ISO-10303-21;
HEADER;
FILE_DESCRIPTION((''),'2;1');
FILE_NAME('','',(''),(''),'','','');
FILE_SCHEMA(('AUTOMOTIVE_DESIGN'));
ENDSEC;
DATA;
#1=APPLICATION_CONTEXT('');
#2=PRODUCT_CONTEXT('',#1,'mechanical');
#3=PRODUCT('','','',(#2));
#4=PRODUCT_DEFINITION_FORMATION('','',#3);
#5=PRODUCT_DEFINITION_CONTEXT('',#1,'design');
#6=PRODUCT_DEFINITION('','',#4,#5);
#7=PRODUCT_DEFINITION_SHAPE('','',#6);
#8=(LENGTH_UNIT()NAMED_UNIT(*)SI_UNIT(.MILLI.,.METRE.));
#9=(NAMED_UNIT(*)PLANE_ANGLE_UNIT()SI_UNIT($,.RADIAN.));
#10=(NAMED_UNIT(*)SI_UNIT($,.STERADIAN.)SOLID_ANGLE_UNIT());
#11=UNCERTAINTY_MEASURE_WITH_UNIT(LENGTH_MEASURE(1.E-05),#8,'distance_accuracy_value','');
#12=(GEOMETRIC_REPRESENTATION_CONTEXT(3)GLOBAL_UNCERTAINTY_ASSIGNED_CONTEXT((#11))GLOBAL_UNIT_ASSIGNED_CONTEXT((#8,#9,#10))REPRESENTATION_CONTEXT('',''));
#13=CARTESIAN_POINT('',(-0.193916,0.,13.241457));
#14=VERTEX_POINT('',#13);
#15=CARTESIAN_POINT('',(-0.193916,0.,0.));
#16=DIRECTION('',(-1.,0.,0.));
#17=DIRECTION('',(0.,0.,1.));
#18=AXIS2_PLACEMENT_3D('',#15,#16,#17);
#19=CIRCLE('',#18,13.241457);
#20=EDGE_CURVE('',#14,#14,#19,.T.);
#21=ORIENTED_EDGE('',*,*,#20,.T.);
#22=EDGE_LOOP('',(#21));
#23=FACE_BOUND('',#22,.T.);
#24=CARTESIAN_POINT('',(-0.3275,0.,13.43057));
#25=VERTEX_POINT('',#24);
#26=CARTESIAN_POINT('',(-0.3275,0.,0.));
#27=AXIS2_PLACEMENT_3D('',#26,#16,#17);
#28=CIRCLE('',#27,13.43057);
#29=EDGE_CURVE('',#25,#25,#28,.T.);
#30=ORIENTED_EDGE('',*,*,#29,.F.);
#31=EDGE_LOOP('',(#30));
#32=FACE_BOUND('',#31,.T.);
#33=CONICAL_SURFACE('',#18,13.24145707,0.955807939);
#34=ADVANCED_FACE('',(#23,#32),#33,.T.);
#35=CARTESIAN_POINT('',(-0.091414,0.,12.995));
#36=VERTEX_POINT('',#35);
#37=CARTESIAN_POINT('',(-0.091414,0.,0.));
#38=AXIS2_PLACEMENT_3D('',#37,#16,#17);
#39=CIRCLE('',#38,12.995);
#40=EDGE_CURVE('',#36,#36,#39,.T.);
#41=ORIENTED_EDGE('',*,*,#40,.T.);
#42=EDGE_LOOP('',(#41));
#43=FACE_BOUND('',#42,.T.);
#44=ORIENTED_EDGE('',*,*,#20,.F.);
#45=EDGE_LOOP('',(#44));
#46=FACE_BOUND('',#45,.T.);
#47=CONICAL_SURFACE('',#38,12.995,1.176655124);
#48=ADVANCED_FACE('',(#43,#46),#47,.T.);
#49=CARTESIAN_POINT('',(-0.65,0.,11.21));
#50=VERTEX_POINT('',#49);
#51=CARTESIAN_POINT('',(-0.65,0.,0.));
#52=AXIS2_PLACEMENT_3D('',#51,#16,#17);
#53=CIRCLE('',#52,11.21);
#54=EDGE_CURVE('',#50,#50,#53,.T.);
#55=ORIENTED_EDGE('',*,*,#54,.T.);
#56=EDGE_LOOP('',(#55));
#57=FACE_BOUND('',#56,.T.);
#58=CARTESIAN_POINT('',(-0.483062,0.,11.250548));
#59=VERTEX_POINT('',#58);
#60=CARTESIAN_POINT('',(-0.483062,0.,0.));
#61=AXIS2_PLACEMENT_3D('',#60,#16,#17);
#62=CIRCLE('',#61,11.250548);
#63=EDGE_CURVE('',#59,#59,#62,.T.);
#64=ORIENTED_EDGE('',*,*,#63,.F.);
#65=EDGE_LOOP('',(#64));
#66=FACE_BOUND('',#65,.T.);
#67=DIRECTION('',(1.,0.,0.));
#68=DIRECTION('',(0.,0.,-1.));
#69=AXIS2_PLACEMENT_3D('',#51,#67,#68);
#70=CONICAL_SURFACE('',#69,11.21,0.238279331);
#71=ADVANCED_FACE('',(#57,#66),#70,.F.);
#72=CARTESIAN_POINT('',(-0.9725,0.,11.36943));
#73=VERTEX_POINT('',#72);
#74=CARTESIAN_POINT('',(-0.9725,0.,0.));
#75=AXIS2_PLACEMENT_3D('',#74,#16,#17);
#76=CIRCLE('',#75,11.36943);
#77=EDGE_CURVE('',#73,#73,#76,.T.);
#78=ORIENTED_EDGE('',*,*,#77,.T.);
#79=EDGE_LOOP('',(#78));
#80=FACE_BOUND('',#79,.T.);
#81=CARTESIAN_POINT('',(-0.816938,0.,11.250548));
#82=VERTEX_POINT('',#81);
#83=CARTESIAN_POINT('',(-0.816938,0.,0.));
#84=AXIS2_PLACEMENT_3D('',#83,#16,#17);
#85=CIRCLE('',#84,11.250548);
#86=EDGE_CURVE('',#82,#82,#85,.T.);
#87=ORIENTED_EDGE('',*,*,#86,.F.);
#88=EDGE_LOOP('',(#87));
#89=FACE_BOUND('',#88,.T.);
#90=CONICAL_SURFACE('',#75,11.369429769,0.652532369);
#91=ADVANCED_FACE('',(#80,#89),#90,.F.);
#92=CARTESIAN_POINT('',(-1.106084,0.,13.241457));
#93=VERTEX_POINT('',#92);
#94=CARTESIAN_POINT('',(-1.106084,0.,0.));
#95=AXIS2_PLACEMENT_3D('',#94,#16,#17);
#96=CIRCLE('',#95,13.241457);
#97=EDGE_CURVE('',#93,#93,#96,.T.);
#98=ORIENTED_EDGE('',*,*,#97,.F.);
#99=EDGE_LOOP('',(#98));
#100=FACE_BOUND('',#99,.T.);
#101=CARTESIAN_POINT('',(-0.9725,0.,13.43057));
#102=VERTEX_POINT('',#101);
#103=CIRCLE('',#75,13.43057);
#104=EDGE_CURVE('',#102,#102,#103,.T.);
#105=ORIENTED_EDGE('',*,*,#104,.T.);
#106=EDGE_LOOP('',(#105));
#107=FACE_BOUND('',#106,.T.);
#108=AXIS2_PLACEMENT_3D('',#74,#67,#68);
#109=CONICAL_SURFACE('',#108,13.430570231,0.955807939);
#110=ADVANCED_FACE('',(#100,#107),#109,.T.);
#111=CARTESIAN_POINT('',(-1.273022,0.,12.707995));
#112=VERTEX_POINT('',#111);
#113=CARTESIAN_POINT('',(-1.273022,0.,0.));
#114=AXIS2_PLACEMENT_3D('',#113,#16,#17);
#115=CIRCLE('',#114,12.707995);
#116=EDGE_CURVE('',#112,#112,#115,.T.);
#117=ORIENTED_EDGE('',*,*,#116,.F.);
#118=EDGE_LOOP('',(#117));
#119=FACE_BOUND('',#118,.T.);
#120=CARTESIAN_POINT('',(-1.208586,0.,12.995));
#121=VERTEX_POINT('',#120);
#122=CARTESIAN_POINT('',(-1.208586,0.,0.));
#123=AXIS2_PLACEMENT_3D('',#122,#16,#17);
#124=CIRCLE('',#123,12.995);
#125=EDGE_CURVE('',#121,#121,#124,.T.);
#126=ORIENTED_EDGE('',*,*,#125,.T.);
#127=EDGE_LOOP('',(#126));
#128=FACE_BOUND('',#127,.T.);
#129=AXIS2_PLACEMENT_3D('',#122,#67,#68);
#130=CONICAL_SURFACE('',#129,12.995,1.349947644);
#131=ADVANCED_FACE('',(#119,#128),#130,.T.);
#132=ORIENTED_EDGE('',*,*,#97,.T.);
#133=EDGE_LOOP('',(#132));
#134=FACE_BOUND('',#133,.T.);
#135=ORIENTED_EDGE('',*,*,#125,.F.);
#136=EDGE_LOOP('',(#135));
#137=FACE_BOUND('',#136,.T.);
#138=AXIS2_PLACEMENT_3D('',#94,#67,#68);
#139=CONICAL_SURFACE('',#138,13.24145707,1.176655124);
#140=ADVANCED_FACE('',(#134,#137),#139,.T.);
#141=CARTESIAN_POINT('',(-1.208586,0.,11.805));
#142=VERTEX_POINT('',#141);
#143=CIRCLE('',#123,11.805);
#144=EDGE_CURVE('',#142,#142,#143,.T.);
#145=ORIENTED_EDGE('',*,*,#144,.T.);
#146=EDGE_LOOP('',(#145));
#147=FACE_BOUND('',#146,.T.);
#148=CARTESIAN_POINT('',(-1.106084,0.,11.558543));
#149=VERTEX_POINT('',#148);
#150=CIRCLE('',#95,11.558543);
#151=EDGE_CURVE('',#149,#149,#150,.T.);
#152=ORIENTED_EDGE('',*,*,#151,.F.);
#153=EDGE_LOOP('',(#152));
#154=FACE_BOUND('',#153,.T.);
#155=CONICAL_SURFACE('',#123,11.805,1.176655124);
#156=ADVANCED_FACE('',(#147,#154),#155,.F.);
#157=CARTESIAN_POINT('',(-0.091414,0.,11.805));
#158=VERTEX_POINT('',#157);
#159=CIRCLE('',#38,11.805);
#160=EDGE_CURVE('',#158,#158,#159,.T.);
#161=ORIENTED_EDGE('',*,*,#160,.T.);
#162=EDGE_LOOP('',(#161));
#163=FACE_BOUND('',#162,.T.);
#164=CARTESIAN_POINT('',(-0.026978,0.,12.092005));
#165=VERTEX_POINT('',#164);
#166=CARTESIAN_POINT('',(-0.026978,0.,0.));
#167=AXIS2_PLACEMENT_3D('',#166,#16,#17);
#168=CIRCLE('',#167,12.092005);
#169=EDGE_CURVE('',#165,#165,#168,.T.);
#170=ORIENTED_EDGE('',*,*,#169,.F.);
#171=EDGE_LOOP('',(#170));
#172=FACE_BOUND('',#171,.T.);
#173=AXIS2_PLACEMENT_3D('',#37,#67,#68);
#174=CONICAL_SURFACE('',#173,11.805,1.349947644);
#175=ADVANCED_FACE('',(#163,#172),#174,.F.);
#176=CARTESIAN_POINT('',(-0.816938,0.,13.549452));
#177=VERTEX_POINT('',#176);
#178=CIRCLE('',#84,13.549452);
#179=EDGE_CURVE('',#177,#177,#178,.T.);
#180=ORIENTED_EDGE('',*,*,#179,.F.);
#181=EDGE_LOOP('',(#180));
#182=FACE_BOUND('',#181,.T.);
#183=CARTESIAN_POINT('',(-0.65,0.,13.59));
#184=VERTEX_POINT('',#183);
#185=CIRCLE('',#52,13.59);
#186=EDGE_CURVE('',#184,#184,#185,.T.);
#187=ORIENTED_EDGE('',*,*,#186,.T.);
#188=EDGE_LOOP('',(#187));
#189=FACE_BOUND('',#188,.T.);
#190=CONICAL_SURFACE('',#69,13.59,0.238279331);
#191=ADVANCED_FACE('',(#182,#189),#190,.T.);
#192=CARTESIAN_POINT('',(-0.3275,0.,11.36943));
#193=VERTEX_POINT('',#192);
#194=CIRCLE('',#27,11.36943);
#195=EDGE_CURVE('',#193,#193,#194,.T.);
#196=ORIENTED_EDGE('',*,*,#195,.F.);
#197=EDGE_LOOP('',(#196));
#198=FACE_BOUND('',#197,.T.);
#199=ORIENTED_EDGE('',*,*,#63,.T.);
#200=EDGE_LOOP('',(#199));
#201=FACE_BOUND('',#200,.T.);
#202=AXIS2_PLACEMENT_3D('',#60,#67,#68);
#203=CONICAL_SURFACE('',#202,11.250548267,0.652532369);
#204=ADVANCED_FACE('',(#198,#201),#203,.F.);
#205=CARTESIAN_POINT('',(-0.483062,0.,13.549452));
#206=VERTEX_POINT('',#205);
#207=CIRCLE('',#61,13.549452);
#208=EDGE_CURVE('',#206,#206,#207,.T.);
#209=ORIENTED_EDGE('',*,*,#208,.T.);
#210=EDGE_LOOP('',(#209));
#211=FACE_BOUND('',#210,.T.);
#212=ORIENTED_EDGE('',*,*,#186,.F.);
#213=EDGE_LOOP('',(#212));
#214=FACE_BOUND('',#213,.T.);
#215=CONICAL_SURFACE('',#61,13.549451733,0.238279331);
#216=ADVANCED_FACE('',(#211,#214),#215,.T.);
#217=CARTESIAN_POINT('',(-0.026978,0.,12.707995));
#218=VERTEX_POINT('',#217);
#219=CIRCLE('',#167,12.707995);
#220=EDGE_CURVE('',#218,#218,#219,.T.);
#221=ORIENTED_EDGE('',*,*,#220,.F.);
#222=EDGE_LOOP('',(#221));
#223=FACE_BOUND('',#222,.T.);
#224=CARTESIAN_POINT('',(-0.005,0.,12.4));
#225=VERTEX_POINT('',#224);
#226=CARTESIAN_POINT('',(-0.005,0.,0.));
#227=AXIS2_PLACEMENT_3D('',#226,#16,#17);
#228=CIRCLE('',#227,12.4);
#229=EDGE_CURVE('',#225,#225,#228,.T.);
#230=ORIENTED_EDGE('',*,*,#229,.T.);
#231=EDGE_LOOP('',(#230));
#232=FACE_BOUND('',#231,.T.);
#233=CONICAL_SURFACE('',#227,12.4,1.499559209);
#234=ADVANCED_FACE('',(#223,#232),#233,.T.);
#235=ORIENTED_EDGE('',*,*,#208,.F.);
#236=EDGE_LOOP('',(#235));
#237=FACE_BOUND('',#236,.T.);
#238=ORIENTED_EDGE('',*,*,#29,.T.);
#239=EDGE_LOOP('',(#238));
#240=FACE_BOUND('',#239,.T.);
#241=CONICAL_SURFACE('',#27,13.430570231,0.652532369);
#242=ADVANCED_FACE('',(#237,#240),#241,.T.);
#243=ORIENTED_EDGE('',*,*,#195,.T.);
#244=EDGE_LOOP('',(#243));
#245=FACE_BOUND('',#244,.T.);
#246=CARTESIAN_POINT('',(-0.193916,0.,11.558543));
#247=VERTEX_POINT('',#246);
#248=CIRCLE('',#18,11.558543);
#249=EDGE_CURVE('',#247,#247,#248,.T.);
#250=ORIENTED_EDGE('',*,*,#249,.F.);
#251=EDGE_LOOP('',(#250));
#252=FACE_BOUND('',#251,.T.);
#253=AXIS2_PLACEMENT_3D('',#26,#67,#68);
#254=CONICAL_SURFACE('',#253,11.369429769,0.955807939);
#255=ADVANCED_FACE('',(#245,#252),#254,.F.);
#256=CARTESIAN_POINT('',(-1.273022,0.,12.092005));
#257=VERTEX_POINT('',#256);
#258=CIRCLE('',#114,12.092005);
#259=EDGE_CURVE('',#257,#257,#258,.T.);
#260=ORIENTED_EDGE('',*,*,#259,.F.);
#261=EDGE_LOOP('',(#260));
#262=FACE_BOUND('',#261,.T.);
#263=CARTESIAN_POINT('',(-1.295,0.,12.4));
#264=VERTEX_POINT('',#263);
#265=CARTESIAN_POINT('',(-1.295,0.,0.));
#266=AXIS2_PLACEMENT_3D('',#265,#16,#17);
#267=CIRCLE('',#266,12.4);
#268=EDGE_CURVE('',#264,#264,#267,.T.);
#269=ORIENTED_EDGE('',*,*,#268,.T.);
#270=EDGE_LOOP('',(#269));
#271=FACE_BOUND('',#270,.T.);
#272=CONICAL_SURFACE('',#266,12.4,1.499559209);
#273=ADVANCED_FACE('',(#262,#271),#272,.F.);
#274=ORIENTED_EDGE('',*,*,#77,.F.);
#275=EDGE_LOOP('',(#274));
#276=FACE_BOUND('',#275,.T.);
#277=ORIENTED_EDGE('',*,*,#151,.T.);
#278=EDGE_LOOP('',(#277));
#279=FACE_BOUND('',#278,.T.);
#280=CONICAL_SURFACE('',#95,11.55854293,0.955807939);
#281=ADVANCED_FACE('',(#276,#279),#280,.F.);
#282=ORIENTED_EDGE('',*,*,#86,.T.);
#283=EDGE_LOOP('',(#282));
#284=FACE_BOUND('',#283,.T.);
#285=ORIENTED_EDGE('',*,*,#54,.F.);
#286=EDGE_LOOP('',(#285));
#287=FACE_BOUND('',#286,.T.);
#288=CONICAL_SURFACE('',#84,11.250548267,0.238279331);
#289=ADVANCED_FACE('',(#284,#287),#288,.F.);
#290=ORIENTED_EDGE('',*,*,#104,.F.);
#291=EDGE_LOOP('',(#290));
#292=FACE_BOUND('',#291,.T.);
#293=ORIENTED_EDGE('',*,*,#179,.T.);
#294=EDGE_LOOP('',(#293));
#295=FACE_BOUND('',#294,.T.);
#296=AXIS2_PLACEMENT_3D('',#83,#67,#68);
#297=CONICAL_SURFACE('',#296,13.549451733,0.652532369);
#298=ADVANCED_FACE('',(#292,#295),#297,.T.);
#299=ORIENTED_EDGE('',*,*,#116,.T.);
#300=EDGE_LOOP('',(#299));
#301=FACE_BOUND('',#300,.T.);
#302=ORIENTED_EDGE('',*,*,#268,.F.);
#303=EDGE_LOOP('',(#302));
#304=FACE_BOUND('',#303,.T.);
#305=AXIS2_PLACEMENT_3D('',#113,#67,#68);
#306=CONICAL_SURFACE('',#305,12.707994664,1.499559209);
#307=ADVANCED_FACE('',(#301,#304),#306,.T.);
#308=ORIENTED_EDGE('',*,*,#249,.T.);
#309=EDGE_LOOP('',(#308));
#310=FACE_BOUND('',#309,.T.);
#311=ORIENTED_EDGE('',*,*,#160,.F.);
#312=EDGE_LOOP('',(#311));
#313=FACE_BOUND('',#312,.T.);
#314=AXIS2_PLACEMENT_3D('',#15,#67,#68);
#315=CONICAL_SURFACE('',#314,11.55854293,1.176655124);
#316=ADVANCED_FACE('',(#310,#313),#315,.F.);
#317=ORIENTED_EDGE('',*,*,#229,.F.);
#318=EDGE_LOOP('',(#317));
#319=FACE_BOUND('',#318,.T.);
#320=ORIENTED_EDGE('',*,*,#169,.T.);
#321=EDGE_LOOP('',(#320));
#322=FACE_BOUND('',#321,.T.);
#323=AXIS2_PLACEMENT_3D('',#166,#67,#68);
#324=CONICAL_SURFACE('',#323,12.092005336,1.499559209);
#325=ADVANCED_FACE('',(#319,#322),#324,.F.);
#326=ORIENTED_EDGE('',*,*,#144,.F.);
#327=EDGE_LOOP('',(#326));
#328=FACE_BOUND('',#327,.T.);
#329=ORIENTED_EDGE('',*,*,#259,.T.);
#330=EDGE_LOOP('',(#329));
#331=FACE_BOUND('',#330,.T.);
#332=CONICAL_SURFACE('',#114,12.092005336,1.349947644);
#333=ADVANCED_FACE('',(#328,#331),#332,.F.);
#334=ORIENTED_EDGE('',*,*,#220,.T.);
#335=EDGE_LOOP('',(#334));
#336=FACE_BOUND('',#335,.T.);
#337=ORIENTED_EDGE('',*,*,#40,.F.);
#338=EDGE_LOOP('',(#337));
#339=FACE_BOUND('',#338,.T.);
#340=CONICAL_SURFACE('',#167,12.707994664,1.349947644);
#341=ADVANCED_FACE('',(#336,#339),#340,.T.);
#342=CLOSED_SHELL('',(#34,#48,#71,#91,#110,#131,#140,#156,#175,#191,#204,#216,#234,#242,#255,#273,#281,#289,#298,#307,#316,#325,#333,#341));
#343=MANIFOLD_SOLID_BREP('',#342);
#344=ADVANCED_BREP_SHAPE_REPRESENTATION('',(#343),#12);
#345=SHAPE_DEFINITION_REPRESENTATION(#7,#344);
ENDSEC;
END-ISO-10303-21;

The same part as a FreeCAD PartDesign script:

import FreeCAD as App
import Part
import Sketcher

V = App.Vector
Q = App.Units.Quantity

doc = App.newDocument("Part")
body = doc.addObject("PartDesign::Body", "Body")

sketch1 = body.newObject("Sketcher::SketchObject", "Sketch")
sketch1.AttachmentSupport = (doc.getObject("XY_Plane"), [""])
sketch1.MapMode = "FlatFace"
sketch1.addGeometry(Part.LineSegment(V(-1.27, 12.71, 0), V(-1.29, 12.4, 0)), False)
sketch1.addGeometry(Part.LineSegment(V(-1.29, 12.4, 0), V(-1.27, 12.09, 0)), False)
sketch1.addGeometry(Part.LineSegment(V(-1.27, 12.09, 0), V(-1.21, 11.8, 0)), False)
sketch1.addGeometry(Part.LineSegment(V(-1.21, 11.8, 0), V(-1.11, 11.56, 0)), False)
sketch1.addGeometry(Part.LineSegment(V(-1.11, 11.56, 0), V(-0.97, 11.37, 0)), False)
sketch1.addGeometry(Part.LineSegment(V(-0.97, 11.37, 0), V(-0.82, 11.25, 0)), False)
sketch1.addGeometry(Part.LineSegment(V(-0.82, 11.25, 0), V(-0.65, 11.21, 0)), False)
sketch1.addGeometry(Part.LineSegment(V(-0.65, 11.21, 0), V(-0.48, 11.25, 0)), False)
sketch1.addGeometry(Part.LineSegment(V(-0.48, 11.25, 0), V(-0.33, 11.37, 0)), False)
sketch1.addGeometry(Part.LineSegment(V(-0.33, 11.37, 0), V(-0.19, 11.56, 0)), False)
sketch1.addGeometry(Part.LineSegment(V(-0.19, 11.56, 0), V(-0.09, 11.8, 0)), False)
sketch1.addGeometry(Part.LineSegment(V(-0.09, 11.8, 0), V(-0.03, 12.09, 0)), False)
sketch1.addGeometry(Part.LineSegment(V(-0.03, 12.09, 0), V(-0.01, 12.4, 0)), False)
sketch1.addGeometry(Part.LineSegment(V(-0.01, 12.4, 0), V(-0.03, 12.71, 0)), False)
sketch1.addGeometry(Part.LineSegment(V(-0.03, 12.71, 0), V(-0.09, 12.99, 0)), False)
sketch1.addGeometry(Part.LineSegment(V(-0.09, 12.99, 0), V(-0.19, 13.24, 0)), False)
sketch1.addGeometry(Part.LineSegment(V(-0.19, 13.24, 0), V(-0.33, 13.43, 0)), False)
sketch1.addGeometry(Part.LineSegment(V(-0.33, 13.43, 0), V(-0.48, 13.55, 0)), False)
sketch1.addGeometry(Part.LineSegment(V(-0.48, 13.55, 0), V(-0.65, 13.59, 0)), False)
sketch1.addGeometry(Part.LineSegment(V(-0.65, 13.59, 0), V(-0.82, 13.55, 0)), False)
sketch1.addGeometry(Part.LineSegment(V(-0.82, 13.55, 0), V(-0.97, 13.43, 0)), False)
sketch1.addGeometry(Part.LineSegment(V(-0.97, 13.43, 0), V(-1.11, 13.24, 0)), False)
sketch1.addGeometry(Part.LineSegment(V(-1.11, 13.24, 0), V(-1.21, 12.99, 0)), False)
sketch1.addGeometry(Part.LineSegment(V(-1.21, 12.99, 0), V(-1.27, 12.71, 0)), False)
sketch1.addConstraint(Sketcher.Constraint("Coincident", 0, 2, 1, 1))
sketch1.addConstraint(Sketcher.Constraint("Coincident", 1, 2, 2, 1))
sketch1.addConstraint(Sketcher.Constraint("Coincident", 2, 2, 3, 1))
sketch1.addConstraint(Sketcher.Constraint("Coincident", 3, 2, 4, 1))
sketch1.addConstraint(Sketcher.Constraint("Coincident", 4, 2, 5, 1))
sketch1.addConstraint(Sketcher.Constraint("Coincident", 5, 2, 6, 1))
sketch1.addConstraint(Sketcher.Constraint("Coincident", 6, 2, 7, 1))
sketch1.addConstraint(Sketcher.Constraint("Coincident", 7, 2, 8, 1))
sketch1.addConstraint(Sketcher.Constraint("Coincident", 8, 2, 9, 1))
sketch1.addConstraint(Sketcher.Constraint("Coincident", 9, 2, 10, 1))
sketch1.addConstraint(Sketcher.Constraint("Coincident", 10, 2, 11, 1))
sketch1.addConstraint(Sketcher.Constraint("Coincident", 11, 2, 12, 1))
sketch1.addConstraint(Sketcher.Constraint("Coincident", 12, 2, 13, 1))
sketch1.addConstraint(Sketcher.Constraint("Coincident", 13, 2, 14, 1))
sketch1.addConstraint(Sketcher.Constraint("Coincident", 14, 2, 15, 1))
sketch1.addConstraint(Sketcher.Constraint("Coincident", 15, 2, 16, 1))
sketch1.addConstraint(Sketcher.Constraint("Coincident", 16, 2, 17, 1))
sketch1.addConstraint(Sketcher.Constraint("Coincident", 17, 2, 18, 1))
sketch1.addConstraint(Sketcher.Constraint("Coincident", 18, 2, 19, 1))
sketch1.addConstraint(Sketcher.Constraint("Coincident", 19, 2, 20, 1))
sketch1.addConstraint(Sketcher.Constraint("Coincident", 20, 2, 21, 1))
sketch1.addConstraint(Sketcher.Constraint("Coincident", 21, 2, 22, 1))
sketch1.addConstraint(Sketcher.Constraint("Coincident", 22, 2, 23, 1))
sketch1.addConstraint(Sketcher.Constraint("Coincident", 23, 2, 0, 1))
sketch1.addConstraint(Sketcher.Constraint("Parallel", 0, 12))
sketch1.addConstraint(Sketcher.Constraint("Parallel", 1, 13))
sketch1.addConstraint(Sketcher.Constraint("Parallel", 2, 14))
sketch1.addConstraint(Sketcher.Constraint("Parallel", 3, 15))
sketch1.addConstraint(Sketcher.Constraint("Parallel", 4, 16))
sketch1.addConstraint(Sketcher.Constraint("Parallel", 5, 17))
sketch1.addConstraint(Sketcher.Constraint("Parallel", 6, 18))
sketch1.addConstraint(Sketcher.Constraint("Parallel", 7, 19))
sketch1.addConstraint(Sketcher.Constraint("Parallel", 8, 20))
sketch1.addConstraint(Sketcher.Constraint("Parallel", 9, 21))
sketch1.addConstraint(Sketcher.Constraint("Parallel", 10, 22))
sketch1.addConstraint(Sketcher.Constraint("Parallel", 11, 23))
sketch1.addConstraint(Sketcher.Constraint("Horizontal", 5, 2, 7, 2))
sketch1.addConstraint(Sketcher.Constraint("Horizontal", 4, 2, 8, 2))
sketch1.addConstraint(Sketcher.Constraint("Horizontal", 3, 2, 9, 2))
sketch1.addConstraint(Sketcher.Constraint("Horizontal", 2, 2, 10, 2))
sketch1.addConstraint(Sketcher.Constraint("Horizontal", 1, 2, 11, 2))
sketch1.addConstraint(Sketcher.Constraint("Horizontal", 0, 2, 12, 2))
sketch1.addConstraint(Sketcher.Constraint("Horizontal", 17, 2, 19, 2))
sketch1.addConstraint(Sketcher.Constraint("Horizontal", 16, 2, 20, 2))
sketch1.addConstraint(Sketcher.Constraint("Horizontal", 15, 2, 21, 2))
sketch1.addConstraint(Sketcher.Constraint("Horizontal", 14, 2, 22, 2))
sketch1.addConstraint(Sketcher.Constraint("Horizontal", 13, 2, 23, 2))
sketch1.addConstraint(Sketcher.Constraint("Vertical", 11, 2, 13, 2))
sketch1.addConstraint(Sketcher.Constraint("Vertical", 10, 2, 14, 2))
sketch1.addConstraint(Sketcher.Constraint("Vertical", 9, 2, 15, 2))
sketch1.addConstraint(Sketcher.Constraint("Vertical", 8, 2, 16, 2))
sketch1.addConstraint(Sketcher.Constraint("Vertical", 7, 2, 17, 2))
sketch1.addConstraint(Sketcher.Constraint("Vertical", 6, 2, 18, 2))
sketch1.addConstraint(Sketcher.Constraint("Vertical", 5, 2, 19, 2))
sketch1.addConstraint(Sketcher.Constraint("Vertical", 4, 2, 20, 2))
sketch1.addConstraint(Sketcher.Constraint("Vertical", 3, 2, 21, 2))
sketch1.addConstraint(Sketcher.Constraint("Vertical", 2, 2, 22, 2))
sketch1.addConstraint(Sketcher.Constraint("Vertical", 1, 2, 23, 2))
sketch1.addConstraint(Sketcher.Constraint("DistanceY", -1, 1, 0, 2, Q("12.4 mm")))
sketch1.addConstraint(Sketcher.Constraint("DistanceX", 6, 2, -1, 1, Q("0.65 mm")))
sketch1.addConstraint(Sketcher.Constraint("DistanceY", -1, 1, 6, 2, Q("11.21 mm")))
sketch1.addConstraint(Sketcher.Constraint("DistanceY", 10, 2, 14, 2, Q("1.19 mm")))
sketch1.addConstraint(Sketcher.Constraint("DistanceX", 0, 2, -1, 1, Q("1.295 mm")))
sketch1.addConstraint(Sketcher.Constraint("DistanceX", 4, 2, 8, 2, Q("0.645 mm")))
sketch1.addConstraint(Sketcher.Constraint("Distance", 2, Q("0.29415 mm")))
sketch1.addConstraint(Sketcher.Constraint("DistanceY", -1, 1, 4, 2, Q("11.36943 mm")))
sketch1.addConstraint(Sketcher.Constraint("DistanceX", 5, 2, -1, 1, Q("0.816938 mm")))
sketch1.addConstraint(Sketcher.Constraint("DistanceY", -1, 1, 5, 2, Q("11.250548 mm")))
sketch1.addConstraint(Sketcher.Constraint("DistanceX", 1, 2, 3, 2, Q("0.166938 mm")))
sketch1.addConstraint(Sketcher.Constraint("DistanceX", 2, 2, 5, 2, Q("0.391648 mm")))
sketch1.addConstraint(Sketcher.Constraint("DistanceY", 11, 2, 13, 2, Q("0.615989 mm")))
sketch1.addConstraint(Sketcher.Constraint("DistanceY", 9, 2, 13, 2, Q("1.149452 mm")))
revolution = body.newObject("PartDesign::Revolution", "Revolution")
revolution.Profile = sketch1
revolution.ReferenceAxis = (sketch1, ["H_Axis"])
revolution.Angle = 360

doc.recompute()
